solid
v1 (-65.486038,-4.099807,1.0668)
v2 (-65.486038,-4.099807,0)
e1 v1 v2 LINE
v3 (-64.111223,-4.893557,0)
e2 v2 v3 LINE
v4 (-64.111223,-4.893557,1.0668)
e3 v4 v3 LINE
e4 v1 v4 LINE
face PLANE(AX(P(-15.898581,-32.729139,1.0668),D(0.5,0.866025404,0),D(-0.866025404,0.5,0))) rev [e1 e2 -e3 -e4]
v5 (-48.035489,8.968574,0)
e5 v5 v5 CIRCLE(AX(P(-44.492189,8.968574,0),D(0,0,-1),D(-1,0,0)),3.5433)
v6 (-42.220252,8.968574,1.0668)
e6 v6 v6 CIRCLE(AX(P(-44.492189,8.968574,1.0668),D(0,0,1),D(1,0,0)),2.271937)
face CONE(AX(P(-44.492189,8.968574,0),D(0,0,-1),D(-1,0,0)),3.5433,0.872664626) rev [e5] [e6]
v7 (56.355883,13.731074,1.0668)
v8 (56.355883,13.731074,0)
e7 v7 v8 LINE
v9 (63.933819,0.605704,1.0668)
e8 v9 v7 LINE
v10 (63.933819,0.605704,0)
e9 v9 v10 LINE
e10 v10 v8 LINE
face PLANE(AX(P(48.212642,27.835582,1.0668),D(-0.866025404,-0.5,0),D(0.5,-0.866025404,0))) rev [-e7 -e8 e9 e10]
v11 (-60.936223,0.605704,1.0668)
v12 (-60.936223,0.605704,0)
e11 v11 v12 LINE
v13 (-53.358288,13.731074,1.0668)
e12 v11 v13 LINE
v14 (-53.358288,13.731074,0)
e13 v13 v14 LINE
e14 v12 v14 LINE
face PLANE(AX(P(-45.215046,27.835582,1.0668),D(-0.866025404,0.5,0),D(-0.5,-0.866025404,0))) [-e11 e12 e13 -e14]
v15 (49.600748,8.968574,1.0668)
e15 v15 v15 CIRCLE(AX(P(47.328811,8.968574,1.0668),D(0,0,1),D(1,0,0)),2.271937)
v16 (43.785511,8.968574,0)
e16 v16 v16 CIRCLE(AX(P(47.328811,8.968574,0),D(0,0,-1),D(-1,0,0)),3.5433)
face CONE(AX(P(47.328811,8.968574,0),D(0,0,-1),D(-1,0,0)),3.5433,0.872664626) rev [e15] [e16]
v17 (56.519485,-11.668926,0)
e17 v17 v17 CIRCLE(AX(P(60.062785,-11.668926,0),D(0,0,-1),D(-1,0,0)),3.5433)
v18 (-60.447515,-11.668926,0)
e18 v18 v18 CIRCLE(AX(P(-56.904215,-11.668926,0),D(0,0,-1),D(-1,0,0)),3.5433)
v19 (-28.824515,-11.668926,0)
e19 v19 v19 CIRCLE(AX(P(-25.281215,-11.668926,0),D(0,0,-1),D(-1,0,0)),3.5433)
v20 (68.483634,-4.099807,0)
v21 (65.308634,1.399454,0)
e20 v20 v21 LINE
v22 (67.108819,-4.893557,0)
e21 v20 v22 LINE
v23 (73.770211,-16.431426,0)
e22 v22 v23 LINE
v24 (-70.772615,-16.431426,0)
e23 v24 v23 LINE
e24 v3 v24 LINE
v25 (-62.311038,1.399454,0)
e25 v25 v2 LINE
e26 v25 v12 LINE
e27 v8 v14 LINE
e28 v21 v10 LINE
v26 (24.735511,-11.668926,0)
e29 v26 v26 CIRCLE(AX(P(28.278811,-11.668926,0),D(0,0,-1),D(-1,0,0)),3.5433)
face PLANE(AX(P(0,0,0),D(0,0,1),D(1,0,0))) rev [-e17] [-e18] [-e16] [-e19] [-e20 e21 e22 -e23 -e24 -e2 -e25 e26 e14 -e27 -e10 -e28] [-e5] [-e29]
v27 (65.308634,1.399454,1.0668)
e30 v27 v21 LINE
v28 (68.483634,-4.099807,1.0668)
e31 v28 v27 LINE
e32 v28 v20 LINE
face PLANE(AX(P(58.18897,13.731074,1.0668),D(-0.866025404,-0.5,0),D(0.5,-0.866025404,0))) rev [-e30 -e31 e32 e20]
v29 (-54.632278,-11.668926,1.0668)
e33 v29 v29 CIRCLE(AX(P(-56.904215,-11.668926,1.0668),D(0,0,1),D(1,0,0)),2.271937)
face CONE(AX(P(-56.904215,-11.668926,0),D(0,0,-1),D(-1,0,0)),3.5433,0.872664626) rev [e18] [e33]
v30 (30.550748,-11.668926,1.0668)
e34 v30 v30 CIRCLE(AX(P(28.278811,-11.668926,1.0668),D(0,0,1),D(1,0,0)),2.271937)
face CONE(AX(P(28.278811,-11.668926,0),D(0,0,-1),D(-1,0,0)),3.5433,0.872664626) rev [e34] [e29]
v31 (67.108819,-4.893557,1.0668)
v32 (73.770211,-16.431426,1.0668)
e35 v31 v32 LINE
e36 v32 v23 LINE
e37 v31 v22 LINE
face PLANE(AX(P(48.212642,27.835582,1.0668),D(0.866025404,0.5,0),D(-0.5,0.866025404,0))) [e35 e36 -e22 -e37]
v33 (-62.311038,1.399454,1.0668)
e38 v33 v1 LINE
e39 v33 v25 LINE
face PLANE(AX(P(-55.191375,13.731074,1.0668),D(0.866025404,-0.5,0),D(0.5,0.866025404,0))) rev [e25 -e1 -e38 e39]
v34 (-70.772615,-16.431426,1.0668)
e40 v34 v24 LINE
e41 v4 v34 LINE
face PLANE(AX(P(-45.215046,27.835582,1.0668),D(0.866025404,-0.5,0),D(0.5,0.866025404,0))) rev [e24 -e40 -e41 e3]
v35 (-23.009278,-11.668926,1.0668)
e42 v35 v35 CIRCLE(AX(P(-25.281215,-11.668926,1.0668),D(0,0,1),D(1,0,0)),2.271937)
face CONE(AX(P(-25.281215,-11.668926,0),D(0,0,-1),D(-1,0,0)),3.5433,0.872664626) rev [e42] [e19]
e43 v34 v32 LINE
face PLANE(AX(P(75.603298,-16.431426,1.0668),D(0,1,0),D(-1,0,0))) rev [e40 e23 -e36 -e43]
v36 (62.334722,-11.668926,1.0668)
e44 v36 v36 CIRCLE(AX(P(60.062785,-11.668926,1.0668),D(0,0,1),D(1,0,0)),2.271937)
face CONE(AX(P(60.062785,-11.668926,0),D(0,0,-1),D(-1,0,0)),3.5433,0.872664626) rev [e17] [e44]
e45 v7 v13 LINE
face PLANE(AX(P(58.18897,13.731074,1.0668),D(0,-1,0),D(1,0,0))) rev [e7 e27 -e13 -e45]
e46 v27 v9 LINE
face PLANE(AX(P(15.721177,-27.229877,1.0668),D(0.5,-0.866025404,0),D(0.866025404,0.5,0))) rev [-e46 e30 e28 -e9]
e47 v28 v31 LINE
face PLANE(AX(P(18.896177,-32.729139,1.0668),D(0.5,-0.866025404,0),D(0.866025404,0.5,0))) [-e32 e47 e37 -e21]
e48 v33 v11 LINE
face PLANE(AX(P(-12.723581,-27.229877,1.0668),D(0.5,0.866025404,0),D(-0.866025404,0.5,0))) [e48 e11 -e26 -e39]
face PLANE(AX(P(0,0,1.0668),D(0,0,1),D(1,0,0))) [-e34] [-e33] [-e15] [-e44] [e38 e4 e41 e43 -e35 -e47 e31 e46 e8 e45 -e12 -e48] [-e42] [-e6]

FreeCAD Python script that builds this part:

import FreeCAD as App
import Part
import Sketcher
from FreeCAD import Vector
Q = App.Units.Quantity


def add_polygon(sketch, points):
    """Adds a closed chain of lines whose ends are joined by coincident constraints."""
    first, n = sketch.GeometryCount, len(points)
    for a, b in zip(points, points[1:] + points[:1]):
        sketch.addGeometry(Part.LineSegment(App.Vector(*a, 0), App.Vector(*b, 0)), False)
    for i in range(n):
        sketch.addConstraint(Sketcher.Constraint("Coincident", first + i, 2, first + (i + 1) % n, 1))

doc = App.newDocument("Part")
body = doc.addObject("PartDesign::Body", "Body")

# Sketch on XY plane
sketch1 = body.newObject("Sketcher::SketchObject", "Sketch")
sketch1.AttachmentSupport = (doc.getObject("XY_Plane"), [""])
sketch1.MapMode = "FlatFace"
add_polygon(sketch1, [(-55.191375, 13.731074), (-72.605702, -16.431426), (75.603298, -16.431426), (58.18897, 13.731074)])  # lines 0-3
sketch1.addConstraint(Sketcher.Constraint("Horizontal", 1))
sketch1.addConstraint(Sketcher.Constraint("Horizontal", 3))
sketch1.addConstraint(Sketcher.Constraint("Equal", 0, 2))
sketch1.addConstraint(Sketcher.Constraint("Angle", 0, Q("-120 deg")))
sketch1.addConstraint(Sketcher.Constraint("DistanceX", 1, 1, 1, 2, Q("5.835 in")))
sketch1.addConstraint(Sketcher.Constraint("DistanceY", 1, 2, 2, 2, Q("1.1875 in")))
sketch1.addConstraint(Sketcher.Constraint("DistanceX", -1, 1, 2, 2, Q("58.18897 mm")))
sketch1.addConstraint(Sketcher.Constraint("DistanceY", 0, 2, -1, 1, Q("16.431426 mm")))
pad1 = body.newObject("PartDesign::Pad", "Pad")
pad1.Profile = sketch1
pad1.Length = Q("0.042 in")

# Sketch on YZ plane
sketch2 = body.newObject("Sketcher::SketchObject", "Sketch001")
sketch2.AttachmentSupport = (doc.getObject("YZ_Plane"), [""])
sketch2.MapMode = "FlatFace"
sketch2.AttachmentOffset = App.Placement(Vector(0, 0, 28.278811), App.Rotation())
add_polygon(sketch2, [(-11.668926, 1.0668), (-11.668926, 0), (-8.125626, 0), (-9.770276, 1.380025), (-9.770276, 1.0668)])  # lines 0-4
sketch2.addGeometry(Part.LineSegment(Vector(-11.668926, 0, 0), Vector(-11.668926, 1.380025, 0)), True)  # axis
sketch2.addConstraint(Sketcher.Constraint("Vertical", 0))
sketch2.addConstraint(Sketcher.Constraint("Horizontal", 1))
sketch2.addConstraint(Sketcher.Constraint("Vertical", 3))
sketch2.addConstraint(Sketcher.Constraint("Horizontal", 4))
sketch2.addConstraint(Sketcher.Constraint("Vertical", 5))
sketch2.addConstraint(Sketcher.Constraint("Coincident", 5, 1, 0, 2))
sketch2.addConstraint(Sketcher.Constraint("PointOnObject", 0, 2, -1))
sketch2.addConstraint(Sketcher.Constraint("Horizontal", 2, 2, 5, 2))
sketch2.addConstraint(Sketcher.Constraint("Angle", 2, Q("140 deg")))
sketch2.addConstraint(Sketcher.Constraint("DistanceY", 0, 2, 0, 1, Q("0.042 in")))
sketch2.addConstraint(Sketcher.Constraint("DistanceX", 1, 1, 1, 2, Q("0.1395 in")))
sketch2.addConstraint(Sketcher.Constraint("DistanceX", 4, 2, 4, 1, Q("1.89865 mm")))
sketch2.addConstraint(Sketcher.Constraint("DistanceX", 0, 2, -1, 1, Q("11.668926 mm")))
groove = body.newObject("PartDesign::Groove", "Groove")
groove.Profile = sketch2
groove.ReferenceAxis = (sketch2, ["Axis0"])
groove.Angle = 360
doc.recompute()

datumline = body.newObject("PartDesign::Line", "DatumLine")
datumline.Placement = App.Placement(Vector(0, 0, 0), App.Rotation(Vector(0, 0, 1), Vector(-0.962060644, 0.272835697, 0)))
linearpattern = body.newObject("PartDesign::LinearPattern", "LinearPattern")
linearpattern.Originals = [groove]
linearpattern.Direction = (datumline, [""])
linearpattern.Mode = "offset"
linearpattern.Offset = 75.640762
linearpattern.Occurrences = 2
body.Tip = linearpattern
doc.recompute()

datumline2 = body.newObject("PartDesign::Line", "DatumLine001")
datumline2.Placement = App.Placement(Vector(0, 0, 0), App.Rotation(Vector(0, 0, 1), Vector(0.678280103, 0.734803445, 0)))
linearpattern2 = body.newObject("PartDesign::LinearPattern", "LinearPattern001")
linearpattern2.Originals = [groove]
linearpattern2.Direction = (datumline2, [""])
linearpattern2.Mode = "offset"
linearpattern2.Offset = 28.085742
linearpattern2.Occurrences = 2
body.Tip = linearpattern2
doc.recompute()

linearpattern3 = body.newObject("PartDesign::LinearPattern", "LinearPattern002")
linearpattern3.Originals = [groove]
linearpattern3.Direction = (doc.getObject("X_Axis"), [""])
linearpattern3.Mode = "offset"
linearpattern3.Offset = 31.783974
linearpattern3.Occurrences = 2
body.Tip = linearpattern3
doc.recompute()

linearpattern4 = body.newObject("PartDesign::LinearPattern", "LinearPattern003")
linearpattern4.Originals = [groove]
linearpattern4.Direction = (doc.getObject("X_Axis"), [""])
linearpattern4.Mode = "offset"
linearpattern4.Offset = 85.183026
linearpattern4.Occurrences = 2
linearpattern4.Reversed = True
body.Tip = linearpattern4
doc.recompute()

linearpattern5 = body.newObject("PartDesign::LinearPattern", "LinearPattern004")
linearpattern5.Originals = [groove]
linearpattern5.Direction = (doc.getObject("X_Axis"), [""])
linearpattern5.Mode = "offset"
linearpattern5.Offset = 53.560026
linearpattern5.Occurrences = 2
linearpattern5.Reversed = True
body.Tip = linearpattern5

# Sketch on XY plane
sketch3 = body.newObject("Sketcher::SketchObject", "Sketch002")
sketch3.AttachmentSupport = (doc.getObject("XY_Plane"), [""])
sketch3.MapMode = "FlatFace"
add_polygon(sketch3, [(65.308634, 1.399454), (63.933819, 0.605704), (56.355883, 13.731074), (58.18897, 13.731074)])  # lines 0-3
add_polygon(sketch3, [(67.108819, -4.893557), (68.483634, -4.099807), (75.603298, -16.431426), (73.770211, -16.431426)])  # lines 4-7
sketch3.addConstraint(Sketcher.Constraint("Horizontal", 2))
sketch3.addConstraint(Sketcher.Constraint("Horizontal", 6))
sketch3.addConstraint(Sketcher.Constraint("Perpendicular", 0, 1))
sketch3.addConstraint(Sketcher.Constraint("Parallel", 1, 3))
sketch3.addConstraint(Sketcher.Constraint("Perpendicular", 3, 4))
sketch3.addConstraint(Sketcher.Constraint("Perpendicular", 4, 5))
sketch3.addConstraint(Sketcher.Constraint("Parallel", 5, 7))
sketch3.addConstraint(Sketcher.Constraint("Equal", 2, 6))
sketch3.addConstraint(Sketcher.Constraint("Equal", 3, 5))
sketch3.addConstraint(Sketcher.Constraint("Angle", 0, Q("-150 deg")))
sketch3.addConstraint(Sketcher.Constraint("Distance", 0, Q("0.0625 in")))
sketch3.addConstraint(Sketcher.Constraint("DistanceX", 3, 2, 4, 2, Q("0.125 in")))
sketch3.addConstraint(Sketcher.Constraint("DistanceY", 5, 2, 2, 2, Q("1.1875 in")))
sketch3.addConstraint(Sketcher.Constraint("Distance", 1, Q("15.155871 mm")))
sketch3.addConstraint(Sketcher.Constraint("DistanceX", -1, 1, 0, 2, Q("63.933819 mm")))
sketch3.addConstraint(Sketcher.Constraint("DistanceY", -1, 1, 0, 2, Q("0.605704 mm")))
pocket1 = body.newObject("PartDesign::Pocket", "Pocket")
pocket1.Profile = sketch3
pocket1.Type = "ThroughAll"
pocket1.Reversed = True
doc.recompute()

datumplane = body.newObject("PartDesign::Plane", "DatumPlane")
datumplane.AttachmentSupport = (doc.getObject("YZ_Plane"), [""])
datumplane.MapMode = "FlatFace"
datumplane.AttachmentOffset = App.Placement(Vector(0, 0, 1.498798), App.Rotation())
mirrored = body.newObject("PartDesign::Mirrored", "Mirrored")
mirrored.Originals = [pocket1]
mirrored.MirrorPlane = (datumplane, [""])
body.Tip = mirrored

doc.recompute()
